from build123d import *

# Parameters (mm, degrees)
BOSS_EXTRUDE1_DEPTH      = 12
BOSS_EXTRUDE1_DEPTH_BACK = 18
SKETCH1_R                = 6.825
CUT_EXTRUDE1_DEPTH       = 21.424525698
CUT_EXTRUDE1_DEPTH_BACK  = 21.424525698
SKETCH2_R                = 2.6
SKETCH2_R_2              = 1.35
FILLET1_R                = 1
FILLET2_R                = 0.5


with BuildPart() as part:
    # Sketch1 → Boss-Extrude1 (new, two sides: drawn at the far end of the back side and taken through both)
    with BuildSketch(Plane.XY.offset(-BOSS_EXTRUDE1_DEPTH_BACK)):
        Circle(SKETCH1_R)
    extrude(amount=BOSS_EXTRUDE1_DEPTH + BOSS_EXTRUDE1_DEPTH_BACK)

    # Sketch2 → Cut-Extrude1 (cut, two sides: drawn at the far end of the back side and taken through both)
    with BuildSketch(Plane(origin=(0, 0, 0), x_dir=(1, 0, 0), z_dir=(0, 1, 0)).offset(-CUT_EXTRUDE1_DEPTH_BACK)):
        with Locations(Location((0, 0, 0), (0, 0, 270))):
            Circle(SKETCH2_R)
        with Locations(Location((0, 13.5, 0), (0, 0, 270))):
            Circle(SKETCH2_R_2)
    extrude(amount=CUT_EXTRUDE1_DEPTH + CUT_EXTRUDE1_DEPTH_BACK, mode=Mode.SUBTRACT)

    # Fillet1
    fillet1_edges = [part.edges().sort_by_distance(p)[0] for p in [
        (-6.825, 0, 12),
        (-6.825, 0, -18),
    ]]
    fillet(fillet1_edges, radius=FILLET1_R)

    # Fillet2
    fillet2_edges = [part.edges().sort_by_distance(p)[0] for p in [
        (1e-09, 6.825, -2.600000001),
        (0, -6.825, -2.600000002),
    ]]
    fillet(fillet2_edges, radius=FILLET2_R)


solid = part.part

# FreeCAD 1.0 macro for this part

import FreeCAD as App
import Part
import Sketcher
from FreeCAD import Vector


def edges_at(feature, points):
    """Names of the edges that pass closest to the given points."""
    edges = feature.Shape.Edges
    near = lambda p: min(range(len(edges)), key=lambda i: edges[i].distToShape(Part.Vertex(*p))[0])
    return sorted({f"Edge{near(p) + 1}" for p in points})

doc = App.newDocument("Part")
params = doc.addObject("Spreadsheet::Sheet", "Params")
for row, (alias, value) in enumerate([
    ("sketch1_diameter", "13.65 mm"),
    ("pad1_length", "12 mm"),
    ("pad1_length2", "18 mm"),
    ("sketch2_diameter", "5.2 mm"),
    ("sketch2_diameter2", "2.7 mm"),
    ("fillet_radius", "1 mm"),
    ("fillet2_radius", "0.5 mm"),
], start=1):
    params.set(f"A{row}", alias)
    params.set(f"B{row}", "=" + value)
    params.setAlias(f"B{row}", alias)

body = doc.addObject("PartDesign::Body", "Body")

# Sketch on XY plane
sketch1 = doc.addObject("Sketcher::SketchObject", "Sketch")
body.addObject(sketch1)
sketch1.AttachmentSupport = (doc.XY_Plane, [""])
sketch1.MapMode = "FlatFace"
sketch1.addGeometry(Part.Circle(Vector(0, 0, 0), Vector(0, 0, 1), 6.825), False)
sketch1.addConstraint([
    Sketcher.Constraint("Coincident", 0, 3, -1, 1),
    Sketcher.Constraint("Diameter", 0, 13.65),
])
sketch1.setExpression("Constraints[1]", "Params.sketch1_diameter")
pad1 = doc.addObject("PartDesign::Pad", "Pad")
body.addObject(pad1)
pad1.Profile = sketch1
pad1.Type = "TwoLengths"
pad1.setExpression("Length", "Params.pad1_length")
pad1.setExpression("Length2", "Params.pad1_length2")

# Sketch on XZ plane
sketch2 = doc.addObject("Sketcher::SketchObject", "Sketch001")
body.addObject(sketch2)
sketch2.AttachmentSupport = (doc.XZ_Plane, [""])
sketch2.MapMode = "FlatFace"
sketch2.addGeometry([
    Part.Circle(Vector(0, 0, 0), Vector(0, 0, 1), 2.6),
    Part.Circle(Vector(0, -13.5, 0), Vector(0, 0, 1), 1.35),
], False)
sketch2.addConstraint([
    Sketcher.Constraint("Coincident", 0, 3, -1, 1),
    Sketcher.Constraint("PointOnObject", 1, 3, -2),
    Sketcher.Constraint("Diameter", 0, 5.2),
    Sketcher.Constraint("Diameter", 1, 2.7),
    Sketcher.Constraint("DistanceY", 1, 3, -1, 1, 13.5),
])
sketch2.setExpression("Constraints[2]", "Params.sketch2_diameter")
sketch2.setExpression("Constraints[3]", "Params.sketch2_diameter2")
pocket1 = doc.addObject("PartDesign::Pocket", "Pocket")
body.addObject(pocket1)
pocket1.Profile = sketch2
pocket1.Type = "ThroughAll"
pocket1.Midplane = True
doc.recompute()

fillet = doc.addObject("PartDesign::Fillet", "Fillet")
body.addObject(fillet)
fillet.Base = (pocket1, edges_at(pocket1, [(-6.825, 0, 12), (-6.825, 0, -18)]))
fillet.setExpression("Radius", "Params.fillet_radius")
doc.recompute()

fillet2 = doc.addObject("PartDesign::Fillet", "Fillet001")
body.addObject(fillet2)
fillet2.Base = (fillet, edges_at(fillet, [(0, 6.825, -2.6), (0, -6.825, -2.6)]))
fillet2.setExpression("Radius", "Params.fillet2_radius")

doc.recompute()
